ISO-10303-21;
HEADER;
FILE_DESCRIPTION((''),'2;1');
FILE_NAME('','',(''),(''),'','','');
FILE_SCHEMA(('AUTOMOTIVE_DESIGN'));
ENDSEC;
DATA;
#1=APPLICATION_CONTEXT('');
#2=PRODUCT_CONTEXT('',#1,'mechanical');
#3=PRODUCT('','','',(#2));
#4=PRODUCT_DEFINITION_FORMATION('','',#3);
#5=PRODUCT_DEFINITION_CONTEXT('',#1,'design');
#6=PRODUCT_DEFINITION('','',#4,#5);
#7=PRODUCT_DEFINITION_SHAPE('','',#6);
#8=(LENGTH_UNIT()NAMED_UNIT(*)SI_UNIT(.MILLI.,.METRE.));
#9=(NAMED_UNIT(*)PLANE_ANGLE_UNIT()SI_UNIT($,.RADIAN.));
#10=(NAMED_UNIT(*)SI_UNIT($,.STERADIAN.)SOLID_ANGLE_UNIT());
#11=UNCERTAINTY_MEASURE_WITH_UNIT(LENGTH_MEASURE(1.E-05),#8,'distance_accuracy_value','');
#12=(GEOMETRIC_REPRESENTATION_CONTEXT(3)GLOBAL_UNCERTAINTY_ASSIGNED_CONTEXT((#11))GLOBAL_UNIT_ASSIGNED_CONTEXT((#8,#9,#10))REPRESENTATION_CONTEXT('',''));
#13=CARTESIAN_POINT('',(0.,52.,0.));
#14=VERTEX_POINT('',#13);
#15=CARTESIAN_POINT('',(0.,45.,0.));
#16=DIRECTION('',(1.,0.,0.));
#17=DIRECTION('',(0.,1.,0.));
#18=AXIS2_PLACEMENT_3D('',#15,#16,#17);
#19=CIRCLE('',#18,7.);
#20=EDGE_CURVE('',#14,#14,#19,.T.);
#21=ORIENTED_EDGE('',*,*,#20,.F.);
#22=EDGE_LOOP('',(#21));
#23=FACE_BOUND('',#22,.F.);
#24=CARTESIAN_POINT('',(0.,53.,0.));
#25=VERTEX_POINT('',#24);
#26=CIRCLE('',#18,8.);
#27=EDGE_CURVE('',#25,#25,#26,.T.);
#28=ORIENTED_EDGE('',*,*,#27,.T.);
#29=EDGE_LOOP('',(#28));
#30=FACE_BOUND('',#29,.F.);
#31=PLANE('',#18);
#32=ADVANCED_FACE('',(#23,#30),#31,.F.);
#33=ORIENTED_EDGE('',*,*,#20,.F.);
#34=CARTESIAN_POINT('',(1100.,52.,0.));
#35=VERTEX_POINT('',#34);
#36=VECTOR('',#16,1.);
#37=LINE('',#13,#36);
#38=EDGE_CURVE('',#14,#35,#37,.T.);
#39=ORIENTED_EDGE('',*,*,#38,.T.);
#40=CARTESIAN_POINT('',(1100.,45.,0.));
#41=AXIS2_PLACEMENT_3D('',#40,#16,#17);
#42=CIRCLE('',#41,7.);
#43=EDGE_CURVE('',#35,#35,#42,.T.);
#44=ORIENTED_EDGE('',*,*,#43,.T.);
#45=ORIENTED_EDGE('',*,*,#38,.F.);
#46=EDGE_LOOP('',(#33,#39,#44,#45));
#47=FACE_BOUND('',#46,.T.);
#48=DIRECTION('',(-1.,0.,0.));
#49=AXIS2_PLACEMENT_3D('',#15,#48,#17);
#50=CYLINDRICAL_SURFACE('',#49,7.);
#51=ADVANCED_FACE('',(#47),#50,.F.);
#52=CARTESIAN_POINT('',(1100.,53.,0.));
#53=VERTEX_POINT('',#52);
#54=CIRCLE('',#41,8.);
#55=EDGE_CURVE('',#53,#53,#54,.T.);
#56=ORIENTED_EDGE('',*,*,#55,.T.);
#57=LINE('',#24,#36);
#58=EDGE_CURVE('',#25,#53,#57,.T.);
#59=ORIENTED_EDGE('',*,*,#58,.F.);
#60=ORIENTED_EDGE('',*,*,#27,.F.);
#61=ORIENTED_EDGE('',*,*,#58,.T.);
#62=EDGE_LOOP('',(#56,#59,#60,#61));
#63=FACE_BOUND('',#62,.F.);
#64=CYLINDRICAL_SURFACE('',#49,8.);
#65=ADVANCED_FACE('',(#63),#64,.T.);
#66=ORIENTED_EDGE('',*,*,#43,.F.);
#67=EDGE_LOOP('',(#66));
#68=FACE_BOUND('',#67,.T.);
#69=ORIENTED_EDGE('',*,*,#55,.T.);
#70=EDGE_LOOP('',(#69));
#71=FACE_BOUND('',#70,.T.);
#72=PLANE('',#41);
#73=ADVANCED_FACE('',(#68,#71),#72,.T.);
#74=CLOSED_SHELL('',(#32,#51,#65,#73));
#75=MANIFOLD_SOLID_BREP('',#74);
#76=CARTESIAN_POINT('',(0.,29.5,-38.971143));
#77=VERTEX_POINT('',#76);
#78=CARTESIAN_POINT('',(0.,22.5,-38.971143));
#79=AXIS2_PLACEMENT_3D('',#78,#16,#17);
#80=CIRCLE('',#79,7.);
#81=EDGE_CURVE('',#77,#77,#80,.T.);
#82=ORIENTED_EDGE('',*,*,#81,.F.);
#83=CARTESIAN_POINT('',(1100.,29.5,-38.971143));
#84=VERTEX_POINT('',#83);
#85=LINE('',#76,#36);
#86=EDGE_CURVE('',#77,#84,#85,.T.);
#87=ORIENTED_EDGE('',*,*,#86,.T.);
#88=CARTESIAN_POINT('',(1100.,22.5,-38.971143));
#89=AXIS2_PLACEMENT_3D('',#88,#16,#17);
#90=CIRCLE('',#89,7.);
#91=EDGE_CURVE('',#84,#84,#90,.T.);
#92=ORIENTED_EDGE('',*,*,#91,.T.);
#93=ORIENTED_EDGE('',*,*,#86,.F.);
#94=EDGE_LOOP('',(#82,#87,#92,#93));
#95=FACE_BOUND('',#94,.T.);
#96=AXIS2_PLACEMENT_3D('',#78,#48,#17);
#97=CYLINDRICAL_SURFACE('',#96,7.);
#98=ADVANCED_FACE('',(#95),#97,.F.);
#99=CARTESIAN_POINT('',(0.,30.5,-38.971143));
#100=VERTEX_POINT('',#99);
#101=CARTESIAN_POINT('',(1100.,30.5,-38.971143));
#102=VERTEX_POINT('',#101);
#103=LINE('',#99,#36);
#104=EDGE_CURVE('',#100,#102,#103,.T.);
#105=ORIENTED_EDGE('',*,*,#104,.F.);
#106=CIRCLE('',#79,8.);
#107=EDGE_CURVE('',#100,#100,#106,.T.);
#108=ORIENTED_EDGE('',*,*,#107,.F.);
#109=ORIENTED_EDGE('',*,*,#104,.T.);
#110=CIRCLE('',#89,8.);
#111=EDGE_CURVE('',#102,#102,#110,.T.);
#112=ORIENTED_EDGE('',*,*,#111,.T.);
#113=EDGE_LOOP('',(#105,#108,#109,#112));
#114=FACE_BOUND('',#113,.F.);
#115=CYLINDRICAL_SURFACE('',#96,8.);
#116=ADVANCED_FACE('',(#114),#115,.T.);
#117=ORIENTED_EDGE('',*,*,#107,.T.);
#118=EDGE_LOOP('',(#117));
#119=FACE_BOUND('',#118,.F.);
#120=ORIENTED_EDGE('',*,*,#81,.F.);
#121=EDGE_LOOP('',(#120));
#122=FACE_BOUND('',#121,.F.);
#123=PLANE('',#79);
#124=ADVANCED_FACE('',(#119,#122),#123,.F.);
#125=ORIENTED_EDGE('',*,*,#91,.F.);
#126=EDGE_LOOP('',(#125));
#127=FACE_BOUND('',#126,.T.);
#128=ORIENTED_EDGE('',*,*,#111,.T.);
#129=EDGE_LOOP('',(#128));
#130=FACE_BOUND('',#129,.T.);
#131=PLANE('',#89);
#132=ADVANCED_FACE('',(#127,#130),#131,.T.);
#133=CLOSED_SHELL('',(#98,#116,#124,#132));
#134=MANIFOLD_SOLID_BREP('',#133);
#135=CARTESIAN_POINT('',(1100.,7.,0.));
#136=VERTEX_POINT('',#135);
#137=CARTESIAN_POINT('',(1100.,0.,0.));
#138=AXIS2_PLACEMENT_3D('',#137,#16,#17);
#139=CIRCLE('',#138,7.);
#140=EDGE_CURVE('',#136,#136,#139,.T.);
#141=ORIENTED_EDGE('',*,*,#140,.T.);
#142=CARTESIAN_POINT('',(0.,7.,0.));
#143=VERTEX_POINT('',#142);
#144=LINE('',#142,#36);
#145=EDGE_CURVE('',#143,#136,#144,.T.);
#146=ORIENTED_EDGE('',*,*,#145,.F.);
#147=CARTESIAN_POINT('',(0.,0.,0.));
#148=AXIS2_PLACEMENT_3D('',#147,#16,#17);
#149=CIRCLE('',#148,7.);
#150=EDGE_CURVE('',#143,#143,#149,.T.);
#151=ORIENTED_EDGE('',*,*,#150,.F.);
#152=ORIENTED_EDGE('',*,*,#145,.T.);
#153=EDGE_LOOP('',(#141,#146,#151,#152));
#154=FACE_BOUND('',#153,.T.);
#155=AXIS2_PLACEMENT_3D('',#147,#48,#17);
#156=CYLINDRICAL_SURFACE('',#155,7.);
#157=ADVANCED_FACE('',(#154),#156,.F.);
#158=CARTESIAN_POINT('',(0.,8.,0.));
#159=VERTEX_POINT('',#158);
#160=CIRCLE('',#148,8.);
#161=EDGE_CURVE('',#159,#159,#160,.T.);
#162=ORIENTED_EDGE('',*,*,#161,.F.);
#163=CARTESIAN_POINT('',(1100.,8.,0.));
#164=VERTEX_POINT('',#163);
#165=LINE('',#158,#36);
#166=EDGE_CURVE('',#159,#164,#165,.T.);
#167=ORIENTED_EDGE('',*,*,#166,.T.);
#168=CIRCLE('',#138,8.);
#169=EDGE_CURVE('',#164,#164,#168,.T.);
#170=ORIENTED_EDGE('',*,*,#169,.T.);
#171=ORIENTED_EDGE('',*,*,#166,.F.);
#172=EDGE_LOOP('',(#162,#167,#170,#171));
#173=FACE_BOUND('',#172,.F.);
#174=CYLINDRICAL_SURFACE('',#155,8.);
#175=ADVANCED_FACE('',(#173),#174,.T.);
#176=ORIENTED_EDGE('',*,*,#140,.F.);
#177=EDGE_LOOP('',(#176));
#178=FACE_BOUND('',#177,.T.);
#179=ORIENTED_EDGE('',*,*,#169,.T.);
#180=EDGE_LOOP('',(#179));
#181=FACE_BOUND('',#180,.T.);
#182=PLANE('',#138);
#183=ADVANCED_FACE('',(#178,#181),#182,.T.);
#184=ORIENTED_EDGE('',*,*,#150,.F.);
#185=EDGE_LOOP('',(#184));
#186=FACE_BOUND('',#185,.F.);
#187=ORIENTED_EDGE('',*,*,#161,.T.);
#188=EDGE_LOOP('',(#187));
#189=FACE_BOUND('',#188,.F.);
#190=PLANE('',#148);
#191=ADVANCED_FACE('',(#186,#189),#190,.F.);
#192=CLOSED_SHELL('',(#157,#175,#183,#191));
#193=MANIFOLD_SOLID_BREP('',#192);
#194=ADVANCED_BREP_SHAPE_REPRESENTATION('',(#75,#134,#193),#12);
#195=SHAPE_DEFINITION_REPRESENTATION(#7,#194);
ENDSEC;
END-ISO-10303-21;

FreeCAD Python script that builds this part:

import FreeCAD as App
import Part
import Sketcher

doc = App.newDocument("Part")
body = doc.addObject("PartDesign::Body", "Body")
body.AllowCompound = True

# Sketch on YZ plane
sketch1 = body.newObject("Sketcher::SketchObject", "Sketch")
sketch1.AttachmentSupport = (doc.getObject("YZ_Plane"), [""])
sketch1.MapMode = "FlatFace"
sketch1.addGeometry([
    Part.Circle(App.Vector(0, 0, 0), App.Vector(0, 0, 1), 8),  # 0
    Part.Circle(App.Vector(0, 0, 0), App.Vector(0, 0, 1), 7),  # 1
    Part.Circle(App.Vector(45, 0, 0), App.Vector(0, 0, 1), 8),  # 2
    Part.Circle(App.Vector(45, 0, 0), App.Vector(0, 0, 1), 7),  # 3
    Part.Circle(App.Vector(22.5, -38.971143, 0), App.Vector(0, 0, 1), 8),  # 4
    Part.Circle(App.Vector(22.5, -38.971143, 0), App.Vector(0, 0, 1), 7),  # 5
], False)
sketch1.addConstraint([
    Sketcher.Constraint("Coincident", 0, 3, -1, 1),
    Sketcher.Constraint("Coincident", 1, 3, -1, 1),
    Sketcher.Constraint("Coincident", 3, 3, 2, 3),
    Sketcher.Constraint("Coincident", 5, 3, 4, 3),
    Sketcher.Constraint("Equal", 0, 2),
    Sketcher.Constraint("Equal", 1, 3),
    Sketcher.Constraint("Equal", 2, 4),
    Sketcher.Constraint("Equal", 3, 5),
    Sketcher.Constraint("PointOnObject", 2, 3, -1),
    Sketcher.Constraint("Diameter", 0, 16.0),
    Sketcher.Constraint("Diameter", 1, 14.0),
    Sketcher.Constraint("DistanceX", -1, 1, 2, 3, 45.0),
    Sketcher.Constraint("DistanceX", -1, 1, 4, 3, 22.5),
    Sketcher.Constraint("DistanceY", 4, 3, -1, 1, 38.971143),
])
pad1 = body.newObject("PartDesign::Pad", "Pad")
pad1.Profile = sketch1
pad1.Length = 1100

doc.recompute()
